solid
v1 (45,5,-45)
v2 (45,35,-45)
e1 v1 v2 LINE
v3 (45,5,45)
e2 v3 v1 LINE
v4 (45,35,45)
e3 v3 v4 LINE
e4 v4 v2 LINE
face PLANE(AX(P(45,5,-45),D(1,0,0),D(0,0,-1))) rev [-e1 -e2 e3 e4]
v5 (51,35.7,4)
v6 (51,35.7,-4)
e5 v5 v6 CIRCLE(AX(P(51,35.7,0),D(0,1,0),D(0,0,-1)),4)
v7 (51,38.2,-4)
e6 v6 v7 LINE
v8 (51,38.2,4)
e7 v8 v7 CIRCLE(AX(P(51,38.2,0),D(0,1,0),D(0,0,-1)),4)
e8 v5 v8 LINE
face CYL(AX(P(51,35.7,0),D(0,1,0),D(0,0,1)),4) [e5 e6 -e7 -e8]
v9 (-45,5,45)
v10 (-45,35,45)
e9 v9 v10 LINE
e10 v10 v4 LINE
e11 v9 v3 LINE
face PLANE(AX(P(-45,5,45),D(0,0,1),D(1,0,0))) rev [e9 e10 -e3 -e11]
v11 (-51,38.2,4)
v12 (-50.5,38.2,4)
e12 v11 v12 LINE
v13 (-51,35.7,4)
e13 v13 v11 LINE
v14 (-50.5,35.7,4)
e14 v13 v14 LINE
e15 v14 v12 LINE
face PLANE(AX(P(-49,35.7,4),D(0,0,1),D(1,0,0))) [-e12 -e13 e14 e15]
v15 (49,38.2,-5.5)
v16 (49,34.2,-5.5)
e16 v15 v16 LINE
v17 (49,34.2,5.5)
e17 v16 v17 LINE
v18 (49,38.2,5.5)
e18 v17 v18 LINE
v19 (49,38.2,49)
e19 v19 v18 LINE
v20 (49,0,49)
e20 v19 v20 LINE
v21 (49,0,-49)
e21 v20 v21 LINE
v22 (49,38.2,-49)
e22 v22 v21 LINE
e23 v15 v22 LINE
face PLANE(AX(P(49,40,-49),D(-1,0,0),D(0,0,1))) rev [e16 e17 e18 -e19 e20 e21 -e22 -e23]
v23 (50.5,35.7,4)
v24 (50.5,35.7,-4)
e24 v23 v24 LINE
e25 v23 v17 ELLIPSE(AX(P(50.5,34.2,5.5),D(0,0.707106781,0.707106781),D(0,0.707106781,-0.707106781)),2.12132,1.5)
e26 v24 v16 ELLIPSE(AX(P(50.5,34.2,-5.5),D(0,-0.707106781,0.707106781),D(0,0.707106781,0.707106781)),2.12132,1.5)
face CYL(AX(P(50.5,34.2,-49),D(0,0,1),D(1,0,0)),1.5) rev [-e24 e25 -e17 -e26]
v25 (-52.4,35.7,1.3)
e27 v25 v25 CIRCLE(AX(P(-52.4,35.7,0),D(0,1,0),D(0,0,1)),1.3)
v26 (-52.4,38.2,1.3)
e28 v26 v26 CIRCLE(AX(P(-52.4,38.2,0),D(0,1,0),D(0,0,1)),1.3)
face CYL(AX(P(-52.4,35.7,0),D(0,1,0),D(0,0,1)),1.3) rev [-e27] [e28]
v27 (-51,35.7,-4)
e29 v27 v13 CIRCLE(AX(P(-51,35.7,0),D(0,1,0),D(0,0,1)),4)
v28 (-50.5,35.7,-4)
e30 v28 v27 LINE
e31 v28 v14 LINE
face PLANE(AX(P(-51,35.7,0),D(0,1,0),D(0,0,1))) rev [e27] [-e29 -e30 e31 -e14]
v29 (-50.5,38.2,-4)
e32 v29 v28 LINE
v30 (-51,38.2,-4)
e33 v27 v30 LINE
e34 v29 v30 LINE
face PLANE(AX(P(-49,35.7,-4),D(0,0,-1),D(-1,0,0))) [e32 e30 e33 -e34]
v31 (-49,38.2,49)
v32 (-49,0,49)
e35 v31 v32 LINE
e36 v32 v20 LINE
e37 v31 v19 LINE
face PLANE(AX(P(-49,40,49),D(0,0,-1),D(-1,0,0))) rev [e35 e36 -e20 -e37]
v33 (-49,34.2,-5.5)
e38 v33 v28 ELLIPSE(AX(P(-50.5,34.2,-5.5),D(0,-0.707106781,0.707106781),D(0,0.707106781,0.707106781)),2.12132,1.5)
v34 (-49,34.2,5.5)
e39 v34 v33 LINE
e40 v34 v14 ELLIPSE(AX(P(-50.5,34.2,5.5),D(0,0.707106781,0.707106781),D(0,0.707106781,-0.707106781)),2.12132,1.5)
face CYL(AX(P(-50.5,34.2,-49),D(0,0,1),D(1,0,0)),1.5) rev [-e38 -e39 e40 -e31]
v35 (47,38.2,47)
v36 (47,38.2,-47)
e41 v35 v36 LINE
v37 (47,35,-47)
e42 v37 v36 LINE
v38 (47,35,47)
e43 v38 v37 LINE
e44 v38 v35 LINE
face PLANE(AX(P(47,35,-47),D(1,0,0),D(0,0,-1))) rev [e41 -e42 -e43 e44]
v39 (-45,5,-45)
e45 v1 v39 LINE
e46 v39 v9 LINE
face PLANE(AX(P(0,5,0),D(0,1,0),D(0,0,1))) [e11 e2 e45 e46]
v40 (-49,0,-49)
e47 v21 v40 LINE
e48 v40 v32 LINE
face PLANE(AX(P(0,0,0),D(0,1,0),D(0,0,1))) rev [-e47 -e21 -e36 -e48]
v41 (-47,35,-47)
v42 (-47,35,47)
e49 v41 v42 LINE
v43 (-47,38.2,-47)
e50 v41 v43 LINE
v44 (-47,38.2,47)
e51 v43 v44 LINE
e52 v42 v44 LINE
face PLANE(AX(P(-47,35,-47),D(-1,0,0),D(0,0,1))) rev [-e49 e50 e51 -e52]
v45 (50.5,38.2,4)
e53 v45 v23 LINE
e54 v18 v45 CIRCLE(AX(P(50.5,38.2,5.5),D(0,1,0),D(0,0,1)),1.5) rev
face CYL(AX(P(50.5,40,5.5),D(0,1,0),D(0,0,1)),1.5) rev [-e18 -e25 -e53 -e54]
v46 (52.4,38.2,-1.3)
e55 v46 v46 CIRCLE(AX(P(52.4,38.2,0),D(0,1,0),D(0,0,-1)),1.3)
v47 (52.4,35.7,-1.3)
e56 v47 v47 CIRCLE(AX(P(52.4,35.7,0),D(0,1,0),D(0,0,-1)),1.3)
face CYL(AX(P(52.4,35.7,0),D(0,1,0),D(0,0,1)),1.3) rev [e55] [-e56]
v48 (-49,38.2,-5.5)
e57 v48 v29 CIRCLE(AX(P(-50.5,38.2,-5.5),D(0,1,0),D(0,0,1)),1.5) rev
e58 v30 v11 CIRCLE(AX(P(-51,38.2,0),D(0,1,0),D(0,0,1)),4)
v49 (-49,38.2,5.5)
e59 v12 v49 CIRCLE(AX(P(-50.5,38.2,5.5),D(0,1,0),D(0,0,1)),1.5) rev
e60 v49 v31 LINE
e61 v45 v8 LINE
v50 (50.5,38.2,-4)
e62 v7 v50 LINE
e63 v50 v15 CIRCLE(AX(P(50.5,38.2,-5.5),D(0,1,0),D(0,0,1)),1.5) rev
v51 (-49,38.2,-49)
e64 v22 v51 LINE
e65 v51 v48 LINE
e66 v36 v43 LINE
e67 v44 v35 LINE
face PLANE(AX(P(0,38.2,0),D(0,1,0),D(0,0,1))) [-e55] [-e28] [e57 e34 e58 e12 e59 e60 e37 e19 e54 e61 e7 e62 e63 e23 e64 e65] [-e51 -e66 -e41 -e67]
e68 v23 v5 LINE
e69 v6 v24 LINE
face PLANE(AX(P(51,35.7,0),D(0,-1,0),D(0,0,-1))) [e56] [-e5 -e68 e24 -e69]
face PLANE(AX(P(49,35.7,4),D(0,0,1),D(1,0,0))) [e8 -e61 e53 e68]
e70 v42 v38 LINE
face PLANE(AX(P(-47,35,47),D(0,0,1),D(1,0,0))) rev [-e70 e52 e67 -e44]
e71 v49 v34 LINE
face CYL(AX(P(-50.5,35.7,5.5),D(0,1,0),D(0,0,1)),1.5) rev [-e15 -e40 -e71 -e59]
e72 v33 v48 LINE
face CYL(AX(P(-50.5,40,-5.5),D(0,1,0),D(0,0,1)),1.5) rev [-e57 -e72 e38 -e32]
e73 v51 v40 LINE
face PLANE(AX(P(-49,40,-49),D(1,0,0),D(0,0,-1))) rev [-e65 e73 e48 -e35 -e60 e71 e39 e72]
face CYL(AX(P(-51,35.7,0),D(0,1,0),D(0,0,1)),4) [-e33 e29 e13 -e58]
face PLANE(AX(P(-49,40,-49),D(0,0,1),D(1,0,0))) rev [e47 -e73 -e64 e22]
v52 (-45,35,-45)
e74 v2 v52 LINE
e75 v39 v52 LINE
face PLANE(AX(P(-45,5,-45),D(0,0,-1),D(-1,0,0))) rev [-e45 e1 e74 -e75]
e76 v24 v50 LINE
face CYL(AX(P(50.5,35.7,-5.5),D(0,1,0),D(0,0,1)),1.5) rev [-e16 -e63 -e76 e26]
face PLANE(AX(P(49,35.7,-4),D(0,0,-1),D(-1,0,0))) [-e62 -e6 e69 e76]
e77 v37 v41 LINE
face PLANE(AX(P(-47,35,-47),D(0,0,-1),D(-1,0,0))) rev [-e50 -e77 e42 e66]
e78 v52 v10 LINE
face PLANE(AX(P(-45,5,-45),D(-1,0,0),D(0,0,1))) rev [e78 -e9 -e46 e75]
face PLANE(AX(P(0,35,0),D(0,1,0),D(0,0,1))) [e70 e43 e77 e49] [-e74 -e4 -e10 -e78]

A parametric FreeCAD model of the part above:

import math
import FreeCAD as App
import Part
import Sketcher

V = App.Vector
Q = App.Units.Quantity


def edges_at(feature, points):
    """Names of the edges that pass closest to the given points."""
    edges = feature.Shape.Edges
    near = lambda p: min(range(len(edges)), key=lambda i: edges[i].distToShape(Part.Vertex(*p))[0])
    return sorted({f"Edge{near(p) + 1}" for p in points})

doc = App.newDocument("Part")
body = doc.addObject("PartDesign::Body", "Body")

# Sketch on XZ plane
sketch1 = doc.addObject("Sketcher::SketchObject", "Sketch")
body.addObject(sketch1)
sketch1.AttachmentSupport = (doc.XZ_Plane, [""])
sketch1.MapMode = "FlatFace"
sketch1.addGeometry([
    Part.LineSegment(V(-49, -49, 0), V(-49, 49, 0)),
    Part.LineSegment(V(-49, 49, 0), V(49, 49, 0)),
    Part.LineSegment(V(49, 49, 0), V(49, -49, 0)),
    Part.LineSegment(V(49, -49, 0), V(-49, -49, 0)),
], False)
sketch1.addConstraint([
    Sketcher.Constraint("Coincident", 0, 2, 1, 1),
    Sketcher.Constraint("Coincident", 1, 2, 2, 1),
    Sketcher.Constraint("Coincident", 2, 2, 3, 1),
    Sketcher.Constraint("Coincident", 3, 2, 0, 1),
    Sketcher.Constraint("Vertical", 0),
    Sketcher.Constraint("Horizontal", 1),
    Sketcher.Constraint("Vertical", 2),
    Sketcher.Constraint("Horizontal", 3),
    Sketcher.Constraint("Symmetric", 0, 2, 2, 2, -1, 1),
    Sketcher.Constraint("Equal", 3, 0),
    Sketcher.Constraint("DistanceX", 1, 1, 1, 2, Q("98 mm")),
])
pad1 = doc.addObject("PartDesign::Pad", "Pad")
body.addObject(pad1)
pad1.Profile = sketch1
pad1.Length = 40
pad1.Reversed = True

# Sketch on XZ plane
sketch2 = doc.addObject("Sketcher::SketchObject", "Sketch001")
body.addObject(sketch2)
sketch2.AttachmentSupport = (doc.XZ_Plane, [""])
sketch2.MapMode = "FlatFace"
sketch2.AttachmentOffset = App.Placement(V(0, 0, -40), App.Rotation())
sketch2.addGeometry([
    Part.LineSegment(V(-47, -47, 0), V(-47, 47, 0)),
    Part.LineSegment(V(-47, 47, 0), V(47, 47, 0)),
    Part.LineSegment(V(47, 47, 0), V(47, -47, 0)),
    Part.LineSegment(V(47, -47, 0), V(-47, -47, 0)),
], False)
sketch2.addConstraint([
    Sketcher.Constraint("Coincident", 0, 2, 1, 1),
    Sketcher.Constraint("Coincident", 1, 2, 2, 1),
    Sketcher.Constraint("Coincident", 2, 2, 3, 1),
    Sketcher.Constraint("Coincident", 3, 2, 0, 1),
    Sketcher.Constraint("Vertical", 0),
    Sketcher.Constraint("Horizontal", 1),
    Sketcher.Constraint("Vertical", 2),
    Sketcher.Constraint("Horizontal", 3),
    Sketcher.Constraint("Symmetric", 0, 2, 2, 2, -1, 1),
    Sketcher.Constraint("Equal", 3, 0),
    Sketcher.Constraint("DistanceX", 1, 1, 1, 2, Q("94 mm")),
])
pocket1 = doc.addObject("PartDesign::Pocket", "Pocket")
body.addObject(pocket1)
pocket1.Profile = sketch2
pocket1.Length = 5
pocket1.Reversed = True

# Sketch on XZ plane
sketch3 = doc.addObject("Sketcher::SketchObject", "Sketch002")
body.addObject(sketch3)
sketch3.AttachmentSupport = (doc.XZ_Plane, [""])
sketch3.MapMode = "FlatFace"
sketch3.AttachmentOffset = App.Placement(V(0, 0, -35), App.Rotation())
sketch3.addGeometry([
    Part.LineSegment(V(-45, -45, 0), V(-45, 45, 0)),
    Part.LineSegment(V(-45, 45, 0), V(45, 45, 0)),
    Part.LineSegment(V(45, 45, 0), V(45, -45, 0)),
    Part.LineSegment(V(45, -45, 0), V(-45, -45, 0)),
], False)
sketch3.addConstraint([
    Sketcher.Constraint("Coincident", 0, 2, 1, 1),
    Sketcher.Constraint("Coincident", 1, 2, 2, 1),
    Sketcher.Constraint("Coincident", 2, 2, 3, 1),
    Sketcher.Constraint("Coincident", 3, 2, 0, 1),
    Sketcher.Constraint("Vertical", 0),
    Sketcher.Constraint("Horizontal", 1),
    Sketcher.Constraint("Vertical", 2),
    Sketcher.Constraint("Horizontal", 3),
    Sketcher.Constraint("Symmetric", 0, 2, 2, 2, -1, 1),
    Sketcher.Constraint("Equal", 3, 0),
    Sketcher.Constraint("DistanceX", 1, 1, 1, 2, Q("90 mm")),
])
pocket2 = doc.addObject("PartDesign::Pocket", "Pocket001")
body.addObject(pocket2)
pocket2.Profile = sketch3
pocket2.Length = 30
pocket2.Reversed = True

# Sketch on XZ plane
sketch4 = doc.addObject("Sketcher::SketchObject", "Sketch003")
body.addObject(sketch4)
sketch4.AttachmentSupport = (doc.XZ_Plane, [""])
sketch4.MapMode = "FlatFace"
sketch4.AttachmentOffset = App.Placement(V(0, 0, -40), App.Rotation())
sketch4.addGeometry([
    Part.LineSegment(V(-49, -49, 0), V(-49, 49, 0)),  # 0
    Part.LineSegment(V(-49, 49, 0), V(49, 49, 0)),  # 1
    Part.LineSegment(V(49, 49, 0), V(49, -49, 0)),  # 2
    Part.LineSegment(V(49, -49, 0), V(-49, -49, 0)),  # 3
    Part.LineSegment(V(47, 47, 0), V(-47, 47, 0)),  # 4
    Part.LineSegment(V(-47, 47, 0), V(-47, -47, 0)),  # 5
    Part.LineSegment(V(-47, -47, 0), V(47, -47, 0)),  # 6
    Part.LineSegment(V(47, -47, 0), V(47, 47, 0)),  # 7
], False)
sketch4.addConstraint([
    Sketcher.Constraint("Coincident", 0, 2, 1, 1),
    Sketcher.Constraint("Coincident", 1, 2, 2, 1),
    Sketcher.Constraint("Coincident", 2, 2, 3, 1),
    Sketcher.Constraint("Coincident", 3, 2, 0, 1),
    Sketcher.Constraint("Coincident", 4, 2, 5, 1),
    Sketcher.Constraint("Coincident", 5, 2, 6, 1),
    Sketcher.Constraint("Coincident", 6, 2, 7, 1),
    Sketcher.Constraint("Coincident", 7, 2, 4, 1),
    Sketcher.Constraint("Vertical", 0),
    Sketcher.Constraint("Horizontal", 1),
    Sketcher.Constraint("Vertical", 2),
    Sketcher.Constraint("Horizontal", 3),
    Sketcher.Constraint("Horizontal", 4),
    Sketcher.Constraint("Vertical", 5),
    Sketcher.Constraint("Horizontal", 6),
    Sketcher.Constraint("Vertical", 7),
    Sketcher.Constraint("Symmetric", 0, 2, 2, 2, -1, 1),
    Sketcher.Constraint("Symmetric", 4, 2, 6, 2, -1, 1),
    Sketcher.Constraint("Equal", 3, 0),
    Sketcher.Constraint("Equal", 6, 5),
    Sketcher.Constraint("DistanceX", 1, 1, 1, 2, Q("98 mm")),
    Sketcher.Constraint("DistanceX", 4, 2, 4, 1, Q("94 mm")),
])
pocket3 = doc.addObject("PartDesign::Pocket", "Pocket002")
body.addObject(pocket3)
pocket3.Profile = sketch4
pocket3.Length = 1.8
pocket3.Reversed = True

# Sketch on XZ plane
sketch5 = doc.addObject("Sketcher::SketchObject", "Sketch004")
body.addObject(sketch5)
sketch5.AttachmentSupport = (doc.XZ_Plane, [""])
sketch5.MapMode = "FlatFace"
sketch5.AttachmentOffset = App.Placement(V(0, 0, -38.2), App.Rotation())
sketch5.addGeometry([
    Part.LineSegment(V(-49, -4, 0), V(-51, -4, 0)),  # 0
    Part.ArcOfCircle(Part.Circle(V(-51, 0, 0), V(0, 0, 1), 4), math.radians(90), math.radians(270)),  # 1
    Part.LineSegment(V(-51, 4, 0), V(-49, 4, 0)),  # 2
    Part.LineSegment(V(-49, 4, 0), V(-49, -4, 0)),  # 3
    Part.Circle(V(-52.4, 0, 0), V(0, 0, 1), 1.3),  # 4
    Part.LineSegment(V(49, -4, 0), V(49, 4, 0)),  # 5
    Part.LineSegment(V(49, 4, 0), V(51, 4, 0)),  # 6
    Part.ArcOfCircle(Part.Circle(V(51, 0, 0), V(0, 0, 1), 4), math.radians(-90), math.radians(90)),  # 7
    Part.LineSegment(V(51, -4, 0), V(49, -4, 0)),  # 8
    Part.Circle(V(52.4, 0, 0), V(0, 0, 1), 1.3),  # 9
], False)
sketch5.addConstraint([
    Sketcher.Constraint("Tangent", 0, 2, 1, 2),
    Sketcher.Constraint("Tangent", 1, 1, 2, 1),
    Sketcher.Constraint("Coincident", 2, 2, 3, 1),
    Sketcher.Constraint("Coincident", 3, 2, 0, 1),
    Sketcher.Constraint("Coincident", 5, 2, 6, 1),
    Sketcher.Constraint("Tangent", 6, 2, 7, 2),
    Sketcher.Constraint("Tangent", 7, 1, 8, 1),
    Sketcher.Constraint("Coincident", 8, 2, 5, 1),
    Sketcher.Constraint("Horizontal", 0),
    Sketcher.Constraint("Horizontal", 2),
    Sketcher.Constraint("Vertical", 3),
    Sketcher.Constraint("Vertical", 5),
    Sketcher.Constraint("Horizontal", 6),
    Sketcher.Constraint("Horizontal", 8),
    Sketcher.Constraint("Equal", 1, 7),
    Sketcher.Constraint("Equal", 4, 9),
    Sketcher.Constraint("Symmetric", 1, 3, 7, 3, -1, 1),
    Sketcher.Constraint("Symmetric", 4, 3, 9, 3, -1, 1),
    Sketcher.Constraint("Symmetric", 2, 2, 5, 2, -2),
    Sketcher.Constraint("PointOnObject", 4, 3, -1),
    Sketcher.Constraint("Radius", 1, Q("4 mm")),
    Sketcher.Constraint("Diameter", 4, Q("2.6 mm")),
    Sketcher.Constraint("DistanceX", 0, 2, 0, 1, Q("2 mm")),
    Sketcher.Constraint("DistanceX", 1, 3, -1, 1, Q("51 mm")),
    Sketcher.Constraint("DistanceX", 4, 3, -1, 1, Q("52.4 mm")),
])
pad2 = doc.addObject("PartDesign::Pad", "Pad001")
body.addObject(pad2)
pad2.Profile = sketch5
pad2.Length = 2.5
doc.recompute()

fillet = doc.addObject("PartDesign::Fillet", "Fillet")
body.addObject(fillet)
fillet.Base = (pad2, edges_at(pad2, [(-49, 35.7, 0), (-49, 36.95, -4), (-49, 36.95, 4)]))
fillet.Radius = 1.5
doc.recompute()

fillet2 = doc.addObject("PartDesign::Fillet", "Fillet001")
body.addObject(fillet2)
fillet2.Base = (fillet, edges_at(fillet, [(49, 36.95, -4), (49, 35.7, 0), (49, 36.95, 4)]))
fillet2.Radius = 1.5

doc.recompute()
